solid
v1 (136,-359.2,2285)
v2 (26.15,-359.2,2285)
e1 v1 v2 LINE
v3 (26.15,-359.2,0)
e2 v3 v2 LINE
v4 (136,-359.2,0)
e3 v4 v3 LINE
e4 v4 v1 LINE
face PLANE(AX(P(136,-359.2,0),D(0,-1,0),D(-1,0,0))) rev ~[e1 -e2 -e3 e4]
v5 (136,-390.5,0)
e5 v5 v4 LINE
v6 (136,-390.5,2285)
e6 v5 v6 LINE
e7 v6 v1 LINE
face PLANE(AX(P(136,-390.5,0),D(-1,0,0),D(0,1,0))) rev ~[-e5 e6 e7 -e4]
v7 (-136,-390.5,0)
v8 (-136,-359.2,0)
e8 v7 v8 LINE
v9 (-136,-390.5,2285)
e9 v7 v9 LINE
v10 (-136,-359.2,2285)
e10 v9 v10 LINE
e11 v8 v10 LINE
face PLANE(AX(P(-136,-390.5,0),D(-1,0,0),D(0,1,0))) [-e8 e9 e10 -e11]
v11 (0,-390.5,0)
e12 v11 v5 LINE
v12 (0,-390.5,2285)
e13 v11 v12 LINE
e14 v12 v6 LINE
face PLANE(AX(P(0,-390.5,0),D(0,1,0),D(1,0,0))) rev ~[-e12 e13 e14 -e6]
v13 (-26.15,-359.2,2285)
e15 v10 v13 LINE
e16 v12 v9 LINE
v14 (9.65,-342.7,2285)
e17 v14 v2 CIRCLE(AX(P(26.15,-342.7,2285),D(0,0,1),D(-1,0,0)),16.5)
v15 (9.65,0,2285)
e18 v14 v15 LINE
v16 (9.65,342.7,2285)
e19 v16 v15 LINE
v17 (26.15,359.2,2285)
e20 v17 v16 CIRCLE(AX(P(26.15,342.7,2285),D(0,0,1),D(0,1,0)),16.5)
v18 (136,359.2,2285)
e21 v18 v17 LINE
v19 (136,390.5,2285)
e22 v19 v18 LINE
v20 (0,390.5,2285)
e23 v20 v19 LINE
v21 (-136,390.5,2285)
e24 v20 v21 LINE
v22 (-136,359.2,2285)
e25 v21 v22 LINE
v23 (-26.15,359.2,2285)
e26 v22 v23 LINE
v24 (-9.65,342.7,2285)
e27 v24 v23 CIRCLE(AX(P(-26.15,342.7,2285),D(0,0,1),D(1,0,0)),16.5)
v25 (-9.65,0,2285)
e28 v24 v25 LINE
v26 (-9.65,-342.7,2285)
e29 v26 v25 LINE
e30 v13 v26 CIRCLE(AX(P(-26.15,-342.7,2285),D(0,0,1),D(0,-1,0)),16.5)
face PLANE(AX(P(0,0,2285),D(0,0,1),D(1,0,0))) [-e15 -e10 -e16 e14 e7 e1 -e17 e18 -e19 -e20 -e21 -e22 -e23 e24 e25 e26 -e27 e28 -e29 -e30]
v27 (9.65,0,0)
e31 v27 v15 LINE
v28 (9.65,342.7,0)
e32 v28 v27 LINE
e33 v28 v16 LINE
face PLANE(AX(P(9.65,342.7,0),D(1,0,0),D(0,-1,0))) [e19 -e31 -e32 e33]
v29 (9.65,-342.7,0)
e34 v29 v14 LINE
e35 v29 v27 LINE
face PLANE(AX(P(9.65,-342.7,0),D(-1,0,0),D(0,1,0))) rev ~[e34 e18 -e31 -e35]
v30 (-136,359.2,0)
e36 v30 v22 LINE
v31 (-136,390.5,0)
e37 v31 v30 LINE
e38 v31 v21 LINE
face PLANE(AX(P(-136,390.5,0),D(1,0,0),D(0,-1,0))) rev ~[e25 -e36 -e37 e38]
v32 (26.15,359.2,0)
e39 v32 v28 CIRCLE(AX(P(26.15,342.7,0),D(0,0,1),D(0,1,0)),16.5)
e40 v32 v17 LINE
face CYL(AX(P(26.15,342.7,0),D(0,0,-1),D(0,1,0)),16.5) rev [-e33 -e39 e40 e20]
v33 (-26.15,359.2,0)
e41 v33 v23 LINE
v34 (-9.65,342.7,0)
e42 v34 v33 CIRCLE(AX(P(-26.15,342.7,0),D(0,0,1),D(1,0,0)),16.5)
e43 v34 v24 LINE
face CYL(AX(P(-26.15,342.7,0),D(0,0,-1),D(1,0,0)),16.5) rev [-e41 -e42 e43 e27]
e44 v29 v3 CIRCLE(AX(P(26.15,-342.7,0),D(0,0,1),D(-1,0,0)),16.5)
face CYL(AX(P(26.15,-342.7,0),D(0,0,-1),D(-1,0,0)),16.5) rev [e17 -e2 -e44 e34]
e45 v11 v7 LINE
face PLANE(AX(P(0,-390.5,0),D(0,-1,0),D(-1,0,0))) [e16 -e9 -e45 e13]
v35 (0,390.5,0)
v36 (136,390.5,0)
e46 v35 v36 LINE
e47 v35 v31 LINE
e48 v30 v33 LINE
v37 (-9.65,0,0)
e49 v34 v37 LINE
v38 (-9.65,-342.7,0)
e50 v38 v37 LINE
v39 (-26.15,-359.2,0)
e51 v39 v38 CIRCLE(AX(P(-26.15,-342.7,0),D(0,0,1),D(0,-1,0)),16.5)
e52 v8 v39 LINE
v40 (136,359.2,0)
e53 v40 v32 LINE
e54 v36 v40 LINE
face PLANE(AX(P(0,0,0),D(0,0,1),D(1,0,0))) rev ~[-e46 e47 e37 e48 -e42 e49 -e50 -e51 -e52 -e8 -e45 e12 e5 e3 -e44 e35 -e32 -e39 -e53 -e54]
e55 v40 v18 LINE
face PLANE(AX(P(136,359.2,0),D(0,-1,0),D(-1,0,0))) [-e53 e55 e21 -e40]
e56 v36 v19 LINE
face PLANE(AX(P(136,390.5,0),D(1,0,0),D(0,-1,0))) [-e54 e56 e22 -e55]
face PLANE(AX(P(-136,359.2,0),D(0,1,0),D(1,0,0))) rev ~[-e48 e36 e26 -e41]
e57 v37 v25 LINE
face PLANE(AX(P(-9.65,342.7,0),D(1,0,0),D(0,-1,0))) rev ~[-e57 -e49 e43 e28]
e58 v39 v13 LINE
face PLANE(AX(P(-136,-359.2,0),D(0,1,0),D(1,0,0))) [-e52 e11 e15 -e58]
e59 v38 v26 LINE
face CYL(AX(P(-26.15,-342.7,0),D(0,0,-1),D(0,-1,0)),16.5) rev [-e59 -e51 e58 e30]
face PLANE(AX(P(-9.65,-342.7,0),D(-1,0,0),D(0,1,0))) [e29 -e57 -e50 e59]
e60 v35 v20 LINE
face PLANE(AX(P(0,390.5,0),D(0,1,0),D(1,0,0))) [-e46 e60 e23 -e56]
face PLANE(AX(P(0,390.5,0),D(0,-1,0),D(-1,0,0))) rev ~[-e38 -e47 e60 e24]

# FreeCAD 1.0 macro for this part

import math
import FreeCAD as App
import Part
import Sketcher

V = App.Vector
Q = App.Units.Quantity

doc = App.newDocument("Part")
body = doc.addObject("PartDesign::Body", "Body")

sketch1 = doc.addObject("Sketcher::SketchObject", "Sketch")
body.addObject(sketch1)
sketch1.AttachmentSupport = (doc.XY_Plane, [""])
sketch1.MapMode = "FlatFace"
sketch1.addGeometry(Part.LineSegment(V(-136, -359, 0), V(-136, -390, 0)), False)
sketch1.addGeometry(Part.LineSegment(V(-136, -390, 0), V(136, -390, 0)), False)
sketch1.addGeometry(Part.LineSegment(V(136, -390, 0), V(136, -359, 0)), False)
sketch1.addGeometry(Part.LineSegment(V(136, -359, 0), V(26, -359, 0)), False)
sketch1.addGeometry(Part.ArcOfCircle(Part.Circle(V(26, -343, 0), V(0, 0, 1), 16), math.radians(180), math.radians(270)), False)
sketch1.addGeometry(Part.LineSegment(V(10, -343, 0), V(10, 343, 0)), False)
sketch1.addGeometry(Part.ArcOfCircle(Part.Circle(V(26, 343, 0), V(0, 0, 1), 16), math.radians(90), math.radians(180)), False)
sketch1.addGeometry(Part.LineSegment(V(26, 359, 0), V(136, 359, 0)), False)
sketch1.addGeometry(Part.LineSegment(V(136, 359, 0), V(136, 390, 0)), False)
sketch1.addGeometry(Part.LineSegment(V(136, 390, 0), V(-136, 390, 0)), False)
sketch1.addGeometry(Part.LineSegment(V(-136, 390, 0), V(-136, 359, 0)), False)
sketch1.addGeometry(Part.LineSegment(V(-136, 359, 0), V(-26, 359, 0)), False)
sketch1.addGeometry(Part.ArcOfCircle(Part.Circle(V(-26, 343, 0), V(0, 0, 1), 16), math.radians(0), math.radians(90)), False)
sketch1.addGeometry(Part.LineSegment(V(-10, 343, 0), V(-10, -343, 0)), False)
sketch1.addGeometry(Part.ArcOfCircle(Part.Circle(V(-26, -343, 0), V(0, 0, 1), 16), math.radians(-90), math.radians(0)), False)
sketch1.addGeometry(Part.LineSegment(V(-26, -359, 0), V(-136, -359, 0)), False)
sketch1.addConstraint(Sketcher.Constraint("Coincident", 0, 2, 1, 1))
sketch1.addConstraint(Sketcher.Constraint("Coincident", 1, 2, 2, 1))
sketch1.addConstraint(Sketcher.Constraint("Coincident", 2, 2, 3, 1))
sketch1.addConstraint(Sketcher.Constraint("Tangent", 3, 2, 4, 2))
sketch1.addConstraint(Sketcher.Constraint("Tangent", 4, 1, 5, 1))
sketch1.addConstraint(Sketcher.Constraint("Tangent", 5, 2, 6, 2))
sketch1.addConstraint(Sketcher.Constraint("Tangent", 6, 1, 7, 1))
sketch1.addConstraint(Sketcher.Constraint("Coincident", 7, 2, 8, 1))
sketch1.addConstraint(Sketcher.Constraint("Coincident", 8, 2, 9, 1))
sketch1.addConstraint(Sketcher.Constraint("Coincident", 9, 2, 10, 1))
sketch1.addConstraint(Sketcher.Constraint("Coincident", 10, 2, 11, 1))
sketch1.addConstraint(Sketcher.Constraint("Tangent", 11, 2, 12, 2))
sketch1.addConstraint(Sketcher.Constraint("Tangent", 12, 1, 13, 1))
sketch1.addConstraint(Sketcher.Constraint("Tangent", 13, 2, 14, 2))
sketch1.addConstraint(Sketcher.Constraint("Tangent", 14, 1, 15, 1))
sketch1.addConstraint(Sketcher.Constraint("Coincident", 15, 2, 0, 1))
sketch1.addConstraint(Sketcher.Constraint("Vertical", 0))
sketch1.addConstraint(Sketcher.Constraint("Horizontal", 1))
sketch1.addConstraint(Sketcher.Constraint("Vertical", 2))
sketch1.addConstraint(Sketcher.Constraint("Horizontal", 3))
sketch1.addConstraint(Sketcher.Constraint("Vertical", 5))
sketch1.addConstraint(Sketcher.Constraint("Horizontal", 7))
sketch1.addConstraint(Sketcher.Constraint("Vertical", 8))
sketch1.addConstraint(Sketcher.Constraint("Horizontal", 9))
sketch1.addConstraint(Sketcher.Constraint("Vertical", 10))
sketch1.addConstraint(Sketcher.Constraint("Horizontal", 11))
sketch1.addConstraint(Sketcher.Constraint("Vertical", 13))
sketch1.addConstraint(Sketcher.Constraint("Horizontal", 15))
sketch1.addConstraint(Sketcher.Constraint("Equal", 4, 6))
sketch1.addConstraint(Sketcher.Constraint("Equal", 6, 12))
sketch1.addConstraint(Sketcher.Constraint("Equal", 12, 14))
sketch1.addConstraint(Sketcher.Constraint("Symmetric", 4, 3, 12, 3, -1, 1))
sketch1.addConstraint(Sketcher.Constraint("Symmetric", 0, 2, 8, 2, -1, 1))
sketch1.addConstraint(Sketcher.Constraint("Symmetric", 7, 2, 10, 2, -2))
sketch1.addConstraint(Sketcher.Constraint("Symmetric", 2, 2, 15, 2, -2))
sketch1.addConstraint(Sketcher.Constraint("Radius", 4, Q("16.5 mm")))
sketch1.addConstraint(Sketcher.Constraint("DistanceY", 0, 2, 0, 1, Q("31.3 mm")))
sketch1.addConstraint(Sketcher.Constraint("DistanceX", 0, 2, -1, 1, Q("136 mm")))
sketch1.addConstraint(Sketcher.Constraint("DistanceY", 0, 2, -1, 1, Q("390.5 mm")))
sketch1.addConstraint(Sketcher.Constraint("DistanceX", -1, 1, 4, 1, Q("9.65 mm")))
pad1 = doc.addObject("PartDesign::Pad", "Pad")
body.addObject(pad1)
pad1.Profile = sketch1
pad1.Length = 2285

doc.recompute()
